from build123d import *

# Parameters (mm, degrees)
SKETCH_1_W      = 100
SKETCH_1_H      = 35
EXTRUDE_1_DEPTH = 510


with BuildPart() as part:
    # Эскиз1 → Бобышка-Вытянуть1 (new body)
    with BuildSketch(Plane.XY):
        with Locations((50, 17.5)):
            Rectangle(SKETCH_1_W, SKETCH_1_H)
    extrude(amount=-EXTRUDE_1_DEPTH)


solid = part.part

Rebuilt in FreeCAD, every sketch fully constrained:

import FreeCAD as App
import Part
import Sketcher

V = App.Vector


def add_polygon(sketch, points):
    """Adds a closed chain of lines whose ends are joined by coincident constraints."""
    first, n = sketch.GeometryCount, len(points)
    for a, b in zip(points, points[1:] + points[:1]):
        sketch.addGeometry(Part.LineSegment(App.Vector(*a, 0), App.Vector(*b, 0)), False)
    for i in range(n):
        sketch.addConstraint(Sketcher.Constraint("Coincident", first + i, 2, first + (i + 1) % n, 1))

doc = App.newDocument("Part")
params = doc.addObject("Spreadsheet::Sheet", "Params")
for row, (alias, value) in enumerate([
    ("sketch1_width", "100 mm"),
    ("sketch1_height", "35 mm"),
    ("pad1_length", "510 mm"),
], start=1):
    params.set(f"A{row}", alias)
    params.set(f"B{row}", "=" + value)
    params.setAlias(f"B{row}", alias)

body = doc.addObject("PartDesign::Body", "Body")

# Sketch on XY plane
sketch1 = body.newObject("Sketcher::SketchObject", "Sketch")
sketch1.AttachmentSupport = (doc.getObject("XY_Plane"), [""])
sketch1.MapMode = "FlatFace"
add_polygon(sketch1, [(0, 35), (0, 0), (100, 0), (100, 35)])  # lines 0-3
sketch1.addConstraint([
    Sketcher.Constraint("Vertical", 0),
    Sketcher.Constraint("Horizontal", 1),
    Sketcher.Constraint("Vertical", 2),
    Sketcher.Constraint("Horizontal", 3),
    Sketcher.Constraint("Coincident", 0, 2, -1, 1),
    Sketcher.Constraint("DistanceX", 1, 1, 1, 2, 100.0),
    Sketcher.Constraint("DistanceY", 0, 2, 0, 1, 35.0),
])
sketch1.setExpression("Constraints[9]", "Params.sketch1_width")
sketch1.setExpression("Constraints[10]", "Params.sketch1_height")
pad1 = body.newObject("PartDesign::Pad", "Pad")
pad1.Profile = sketch1
pad1.setExpression("Length", "Params.pad1_length")
pad1.Reversed = True

doc.recompute()
